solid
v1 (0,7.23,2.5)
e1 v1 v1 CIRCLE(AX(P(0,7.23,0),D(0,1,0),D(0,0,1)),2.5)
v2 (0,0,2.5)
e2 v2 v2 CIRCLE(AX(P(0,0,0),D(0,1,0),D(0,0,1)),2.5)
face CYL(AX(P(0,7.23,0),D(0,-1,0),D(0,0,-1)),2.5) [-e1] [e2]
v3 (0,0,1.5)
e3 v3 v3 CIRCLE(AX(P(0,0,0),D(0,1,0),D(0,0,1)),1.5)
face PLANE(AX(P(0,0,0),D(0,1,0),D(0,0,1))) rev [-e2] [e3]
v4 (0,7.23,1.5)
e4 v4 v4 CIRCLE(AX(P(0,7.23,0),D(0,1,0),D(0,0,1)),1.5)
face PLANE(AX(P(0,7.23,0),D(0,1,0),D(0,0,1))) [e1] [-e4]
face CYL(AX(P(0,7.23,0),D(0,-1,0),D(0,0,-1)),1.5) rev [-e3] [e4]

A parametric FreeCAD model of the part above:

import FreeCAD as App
import Part
import Sketcher

doc = App.newDocument("Part")
body = doc.addObject("PartDesign::Body", "Body")

# Sketch on XZ plane
sketch1 = body.newObject("Sketcher::SketchObject", "Sketch")
sketch1.AttachmentSupport = (doc.getObject("XZ_Plane"), [""])
sketch1.MapMode = "FlatFace"
sketch1.addGeometry(Part.Circle(App.Vector(0, 0, 0), App.Vector(0, 0, 1), 2.5), False)
sketch1.addGeometry(Part.Circle(App.Vector(0, 0, 0), App.Vector(0, 0, 1), 1.5), False)
sketch1.addConstraint(Sketcher.Constraint("Coincident", 0, 3, -1, 1))
sketch1.addConstraint(Sketcher.Constraint("Coincident", 1, 3, -1, 1))
sketch1.addConstraint(Sketcher.Constraint("Diameter", 0, 5.0))
sketch1.addConstraint(Sketcher.Constraint("Diameter", 1, 3.0))
pad1 = body.newObject("PartDesign::Pad", "Pad")
pad1.Profile = sketch1
pad1.Length = 7.23
pad1.Reversed = True

doc.recompute()
